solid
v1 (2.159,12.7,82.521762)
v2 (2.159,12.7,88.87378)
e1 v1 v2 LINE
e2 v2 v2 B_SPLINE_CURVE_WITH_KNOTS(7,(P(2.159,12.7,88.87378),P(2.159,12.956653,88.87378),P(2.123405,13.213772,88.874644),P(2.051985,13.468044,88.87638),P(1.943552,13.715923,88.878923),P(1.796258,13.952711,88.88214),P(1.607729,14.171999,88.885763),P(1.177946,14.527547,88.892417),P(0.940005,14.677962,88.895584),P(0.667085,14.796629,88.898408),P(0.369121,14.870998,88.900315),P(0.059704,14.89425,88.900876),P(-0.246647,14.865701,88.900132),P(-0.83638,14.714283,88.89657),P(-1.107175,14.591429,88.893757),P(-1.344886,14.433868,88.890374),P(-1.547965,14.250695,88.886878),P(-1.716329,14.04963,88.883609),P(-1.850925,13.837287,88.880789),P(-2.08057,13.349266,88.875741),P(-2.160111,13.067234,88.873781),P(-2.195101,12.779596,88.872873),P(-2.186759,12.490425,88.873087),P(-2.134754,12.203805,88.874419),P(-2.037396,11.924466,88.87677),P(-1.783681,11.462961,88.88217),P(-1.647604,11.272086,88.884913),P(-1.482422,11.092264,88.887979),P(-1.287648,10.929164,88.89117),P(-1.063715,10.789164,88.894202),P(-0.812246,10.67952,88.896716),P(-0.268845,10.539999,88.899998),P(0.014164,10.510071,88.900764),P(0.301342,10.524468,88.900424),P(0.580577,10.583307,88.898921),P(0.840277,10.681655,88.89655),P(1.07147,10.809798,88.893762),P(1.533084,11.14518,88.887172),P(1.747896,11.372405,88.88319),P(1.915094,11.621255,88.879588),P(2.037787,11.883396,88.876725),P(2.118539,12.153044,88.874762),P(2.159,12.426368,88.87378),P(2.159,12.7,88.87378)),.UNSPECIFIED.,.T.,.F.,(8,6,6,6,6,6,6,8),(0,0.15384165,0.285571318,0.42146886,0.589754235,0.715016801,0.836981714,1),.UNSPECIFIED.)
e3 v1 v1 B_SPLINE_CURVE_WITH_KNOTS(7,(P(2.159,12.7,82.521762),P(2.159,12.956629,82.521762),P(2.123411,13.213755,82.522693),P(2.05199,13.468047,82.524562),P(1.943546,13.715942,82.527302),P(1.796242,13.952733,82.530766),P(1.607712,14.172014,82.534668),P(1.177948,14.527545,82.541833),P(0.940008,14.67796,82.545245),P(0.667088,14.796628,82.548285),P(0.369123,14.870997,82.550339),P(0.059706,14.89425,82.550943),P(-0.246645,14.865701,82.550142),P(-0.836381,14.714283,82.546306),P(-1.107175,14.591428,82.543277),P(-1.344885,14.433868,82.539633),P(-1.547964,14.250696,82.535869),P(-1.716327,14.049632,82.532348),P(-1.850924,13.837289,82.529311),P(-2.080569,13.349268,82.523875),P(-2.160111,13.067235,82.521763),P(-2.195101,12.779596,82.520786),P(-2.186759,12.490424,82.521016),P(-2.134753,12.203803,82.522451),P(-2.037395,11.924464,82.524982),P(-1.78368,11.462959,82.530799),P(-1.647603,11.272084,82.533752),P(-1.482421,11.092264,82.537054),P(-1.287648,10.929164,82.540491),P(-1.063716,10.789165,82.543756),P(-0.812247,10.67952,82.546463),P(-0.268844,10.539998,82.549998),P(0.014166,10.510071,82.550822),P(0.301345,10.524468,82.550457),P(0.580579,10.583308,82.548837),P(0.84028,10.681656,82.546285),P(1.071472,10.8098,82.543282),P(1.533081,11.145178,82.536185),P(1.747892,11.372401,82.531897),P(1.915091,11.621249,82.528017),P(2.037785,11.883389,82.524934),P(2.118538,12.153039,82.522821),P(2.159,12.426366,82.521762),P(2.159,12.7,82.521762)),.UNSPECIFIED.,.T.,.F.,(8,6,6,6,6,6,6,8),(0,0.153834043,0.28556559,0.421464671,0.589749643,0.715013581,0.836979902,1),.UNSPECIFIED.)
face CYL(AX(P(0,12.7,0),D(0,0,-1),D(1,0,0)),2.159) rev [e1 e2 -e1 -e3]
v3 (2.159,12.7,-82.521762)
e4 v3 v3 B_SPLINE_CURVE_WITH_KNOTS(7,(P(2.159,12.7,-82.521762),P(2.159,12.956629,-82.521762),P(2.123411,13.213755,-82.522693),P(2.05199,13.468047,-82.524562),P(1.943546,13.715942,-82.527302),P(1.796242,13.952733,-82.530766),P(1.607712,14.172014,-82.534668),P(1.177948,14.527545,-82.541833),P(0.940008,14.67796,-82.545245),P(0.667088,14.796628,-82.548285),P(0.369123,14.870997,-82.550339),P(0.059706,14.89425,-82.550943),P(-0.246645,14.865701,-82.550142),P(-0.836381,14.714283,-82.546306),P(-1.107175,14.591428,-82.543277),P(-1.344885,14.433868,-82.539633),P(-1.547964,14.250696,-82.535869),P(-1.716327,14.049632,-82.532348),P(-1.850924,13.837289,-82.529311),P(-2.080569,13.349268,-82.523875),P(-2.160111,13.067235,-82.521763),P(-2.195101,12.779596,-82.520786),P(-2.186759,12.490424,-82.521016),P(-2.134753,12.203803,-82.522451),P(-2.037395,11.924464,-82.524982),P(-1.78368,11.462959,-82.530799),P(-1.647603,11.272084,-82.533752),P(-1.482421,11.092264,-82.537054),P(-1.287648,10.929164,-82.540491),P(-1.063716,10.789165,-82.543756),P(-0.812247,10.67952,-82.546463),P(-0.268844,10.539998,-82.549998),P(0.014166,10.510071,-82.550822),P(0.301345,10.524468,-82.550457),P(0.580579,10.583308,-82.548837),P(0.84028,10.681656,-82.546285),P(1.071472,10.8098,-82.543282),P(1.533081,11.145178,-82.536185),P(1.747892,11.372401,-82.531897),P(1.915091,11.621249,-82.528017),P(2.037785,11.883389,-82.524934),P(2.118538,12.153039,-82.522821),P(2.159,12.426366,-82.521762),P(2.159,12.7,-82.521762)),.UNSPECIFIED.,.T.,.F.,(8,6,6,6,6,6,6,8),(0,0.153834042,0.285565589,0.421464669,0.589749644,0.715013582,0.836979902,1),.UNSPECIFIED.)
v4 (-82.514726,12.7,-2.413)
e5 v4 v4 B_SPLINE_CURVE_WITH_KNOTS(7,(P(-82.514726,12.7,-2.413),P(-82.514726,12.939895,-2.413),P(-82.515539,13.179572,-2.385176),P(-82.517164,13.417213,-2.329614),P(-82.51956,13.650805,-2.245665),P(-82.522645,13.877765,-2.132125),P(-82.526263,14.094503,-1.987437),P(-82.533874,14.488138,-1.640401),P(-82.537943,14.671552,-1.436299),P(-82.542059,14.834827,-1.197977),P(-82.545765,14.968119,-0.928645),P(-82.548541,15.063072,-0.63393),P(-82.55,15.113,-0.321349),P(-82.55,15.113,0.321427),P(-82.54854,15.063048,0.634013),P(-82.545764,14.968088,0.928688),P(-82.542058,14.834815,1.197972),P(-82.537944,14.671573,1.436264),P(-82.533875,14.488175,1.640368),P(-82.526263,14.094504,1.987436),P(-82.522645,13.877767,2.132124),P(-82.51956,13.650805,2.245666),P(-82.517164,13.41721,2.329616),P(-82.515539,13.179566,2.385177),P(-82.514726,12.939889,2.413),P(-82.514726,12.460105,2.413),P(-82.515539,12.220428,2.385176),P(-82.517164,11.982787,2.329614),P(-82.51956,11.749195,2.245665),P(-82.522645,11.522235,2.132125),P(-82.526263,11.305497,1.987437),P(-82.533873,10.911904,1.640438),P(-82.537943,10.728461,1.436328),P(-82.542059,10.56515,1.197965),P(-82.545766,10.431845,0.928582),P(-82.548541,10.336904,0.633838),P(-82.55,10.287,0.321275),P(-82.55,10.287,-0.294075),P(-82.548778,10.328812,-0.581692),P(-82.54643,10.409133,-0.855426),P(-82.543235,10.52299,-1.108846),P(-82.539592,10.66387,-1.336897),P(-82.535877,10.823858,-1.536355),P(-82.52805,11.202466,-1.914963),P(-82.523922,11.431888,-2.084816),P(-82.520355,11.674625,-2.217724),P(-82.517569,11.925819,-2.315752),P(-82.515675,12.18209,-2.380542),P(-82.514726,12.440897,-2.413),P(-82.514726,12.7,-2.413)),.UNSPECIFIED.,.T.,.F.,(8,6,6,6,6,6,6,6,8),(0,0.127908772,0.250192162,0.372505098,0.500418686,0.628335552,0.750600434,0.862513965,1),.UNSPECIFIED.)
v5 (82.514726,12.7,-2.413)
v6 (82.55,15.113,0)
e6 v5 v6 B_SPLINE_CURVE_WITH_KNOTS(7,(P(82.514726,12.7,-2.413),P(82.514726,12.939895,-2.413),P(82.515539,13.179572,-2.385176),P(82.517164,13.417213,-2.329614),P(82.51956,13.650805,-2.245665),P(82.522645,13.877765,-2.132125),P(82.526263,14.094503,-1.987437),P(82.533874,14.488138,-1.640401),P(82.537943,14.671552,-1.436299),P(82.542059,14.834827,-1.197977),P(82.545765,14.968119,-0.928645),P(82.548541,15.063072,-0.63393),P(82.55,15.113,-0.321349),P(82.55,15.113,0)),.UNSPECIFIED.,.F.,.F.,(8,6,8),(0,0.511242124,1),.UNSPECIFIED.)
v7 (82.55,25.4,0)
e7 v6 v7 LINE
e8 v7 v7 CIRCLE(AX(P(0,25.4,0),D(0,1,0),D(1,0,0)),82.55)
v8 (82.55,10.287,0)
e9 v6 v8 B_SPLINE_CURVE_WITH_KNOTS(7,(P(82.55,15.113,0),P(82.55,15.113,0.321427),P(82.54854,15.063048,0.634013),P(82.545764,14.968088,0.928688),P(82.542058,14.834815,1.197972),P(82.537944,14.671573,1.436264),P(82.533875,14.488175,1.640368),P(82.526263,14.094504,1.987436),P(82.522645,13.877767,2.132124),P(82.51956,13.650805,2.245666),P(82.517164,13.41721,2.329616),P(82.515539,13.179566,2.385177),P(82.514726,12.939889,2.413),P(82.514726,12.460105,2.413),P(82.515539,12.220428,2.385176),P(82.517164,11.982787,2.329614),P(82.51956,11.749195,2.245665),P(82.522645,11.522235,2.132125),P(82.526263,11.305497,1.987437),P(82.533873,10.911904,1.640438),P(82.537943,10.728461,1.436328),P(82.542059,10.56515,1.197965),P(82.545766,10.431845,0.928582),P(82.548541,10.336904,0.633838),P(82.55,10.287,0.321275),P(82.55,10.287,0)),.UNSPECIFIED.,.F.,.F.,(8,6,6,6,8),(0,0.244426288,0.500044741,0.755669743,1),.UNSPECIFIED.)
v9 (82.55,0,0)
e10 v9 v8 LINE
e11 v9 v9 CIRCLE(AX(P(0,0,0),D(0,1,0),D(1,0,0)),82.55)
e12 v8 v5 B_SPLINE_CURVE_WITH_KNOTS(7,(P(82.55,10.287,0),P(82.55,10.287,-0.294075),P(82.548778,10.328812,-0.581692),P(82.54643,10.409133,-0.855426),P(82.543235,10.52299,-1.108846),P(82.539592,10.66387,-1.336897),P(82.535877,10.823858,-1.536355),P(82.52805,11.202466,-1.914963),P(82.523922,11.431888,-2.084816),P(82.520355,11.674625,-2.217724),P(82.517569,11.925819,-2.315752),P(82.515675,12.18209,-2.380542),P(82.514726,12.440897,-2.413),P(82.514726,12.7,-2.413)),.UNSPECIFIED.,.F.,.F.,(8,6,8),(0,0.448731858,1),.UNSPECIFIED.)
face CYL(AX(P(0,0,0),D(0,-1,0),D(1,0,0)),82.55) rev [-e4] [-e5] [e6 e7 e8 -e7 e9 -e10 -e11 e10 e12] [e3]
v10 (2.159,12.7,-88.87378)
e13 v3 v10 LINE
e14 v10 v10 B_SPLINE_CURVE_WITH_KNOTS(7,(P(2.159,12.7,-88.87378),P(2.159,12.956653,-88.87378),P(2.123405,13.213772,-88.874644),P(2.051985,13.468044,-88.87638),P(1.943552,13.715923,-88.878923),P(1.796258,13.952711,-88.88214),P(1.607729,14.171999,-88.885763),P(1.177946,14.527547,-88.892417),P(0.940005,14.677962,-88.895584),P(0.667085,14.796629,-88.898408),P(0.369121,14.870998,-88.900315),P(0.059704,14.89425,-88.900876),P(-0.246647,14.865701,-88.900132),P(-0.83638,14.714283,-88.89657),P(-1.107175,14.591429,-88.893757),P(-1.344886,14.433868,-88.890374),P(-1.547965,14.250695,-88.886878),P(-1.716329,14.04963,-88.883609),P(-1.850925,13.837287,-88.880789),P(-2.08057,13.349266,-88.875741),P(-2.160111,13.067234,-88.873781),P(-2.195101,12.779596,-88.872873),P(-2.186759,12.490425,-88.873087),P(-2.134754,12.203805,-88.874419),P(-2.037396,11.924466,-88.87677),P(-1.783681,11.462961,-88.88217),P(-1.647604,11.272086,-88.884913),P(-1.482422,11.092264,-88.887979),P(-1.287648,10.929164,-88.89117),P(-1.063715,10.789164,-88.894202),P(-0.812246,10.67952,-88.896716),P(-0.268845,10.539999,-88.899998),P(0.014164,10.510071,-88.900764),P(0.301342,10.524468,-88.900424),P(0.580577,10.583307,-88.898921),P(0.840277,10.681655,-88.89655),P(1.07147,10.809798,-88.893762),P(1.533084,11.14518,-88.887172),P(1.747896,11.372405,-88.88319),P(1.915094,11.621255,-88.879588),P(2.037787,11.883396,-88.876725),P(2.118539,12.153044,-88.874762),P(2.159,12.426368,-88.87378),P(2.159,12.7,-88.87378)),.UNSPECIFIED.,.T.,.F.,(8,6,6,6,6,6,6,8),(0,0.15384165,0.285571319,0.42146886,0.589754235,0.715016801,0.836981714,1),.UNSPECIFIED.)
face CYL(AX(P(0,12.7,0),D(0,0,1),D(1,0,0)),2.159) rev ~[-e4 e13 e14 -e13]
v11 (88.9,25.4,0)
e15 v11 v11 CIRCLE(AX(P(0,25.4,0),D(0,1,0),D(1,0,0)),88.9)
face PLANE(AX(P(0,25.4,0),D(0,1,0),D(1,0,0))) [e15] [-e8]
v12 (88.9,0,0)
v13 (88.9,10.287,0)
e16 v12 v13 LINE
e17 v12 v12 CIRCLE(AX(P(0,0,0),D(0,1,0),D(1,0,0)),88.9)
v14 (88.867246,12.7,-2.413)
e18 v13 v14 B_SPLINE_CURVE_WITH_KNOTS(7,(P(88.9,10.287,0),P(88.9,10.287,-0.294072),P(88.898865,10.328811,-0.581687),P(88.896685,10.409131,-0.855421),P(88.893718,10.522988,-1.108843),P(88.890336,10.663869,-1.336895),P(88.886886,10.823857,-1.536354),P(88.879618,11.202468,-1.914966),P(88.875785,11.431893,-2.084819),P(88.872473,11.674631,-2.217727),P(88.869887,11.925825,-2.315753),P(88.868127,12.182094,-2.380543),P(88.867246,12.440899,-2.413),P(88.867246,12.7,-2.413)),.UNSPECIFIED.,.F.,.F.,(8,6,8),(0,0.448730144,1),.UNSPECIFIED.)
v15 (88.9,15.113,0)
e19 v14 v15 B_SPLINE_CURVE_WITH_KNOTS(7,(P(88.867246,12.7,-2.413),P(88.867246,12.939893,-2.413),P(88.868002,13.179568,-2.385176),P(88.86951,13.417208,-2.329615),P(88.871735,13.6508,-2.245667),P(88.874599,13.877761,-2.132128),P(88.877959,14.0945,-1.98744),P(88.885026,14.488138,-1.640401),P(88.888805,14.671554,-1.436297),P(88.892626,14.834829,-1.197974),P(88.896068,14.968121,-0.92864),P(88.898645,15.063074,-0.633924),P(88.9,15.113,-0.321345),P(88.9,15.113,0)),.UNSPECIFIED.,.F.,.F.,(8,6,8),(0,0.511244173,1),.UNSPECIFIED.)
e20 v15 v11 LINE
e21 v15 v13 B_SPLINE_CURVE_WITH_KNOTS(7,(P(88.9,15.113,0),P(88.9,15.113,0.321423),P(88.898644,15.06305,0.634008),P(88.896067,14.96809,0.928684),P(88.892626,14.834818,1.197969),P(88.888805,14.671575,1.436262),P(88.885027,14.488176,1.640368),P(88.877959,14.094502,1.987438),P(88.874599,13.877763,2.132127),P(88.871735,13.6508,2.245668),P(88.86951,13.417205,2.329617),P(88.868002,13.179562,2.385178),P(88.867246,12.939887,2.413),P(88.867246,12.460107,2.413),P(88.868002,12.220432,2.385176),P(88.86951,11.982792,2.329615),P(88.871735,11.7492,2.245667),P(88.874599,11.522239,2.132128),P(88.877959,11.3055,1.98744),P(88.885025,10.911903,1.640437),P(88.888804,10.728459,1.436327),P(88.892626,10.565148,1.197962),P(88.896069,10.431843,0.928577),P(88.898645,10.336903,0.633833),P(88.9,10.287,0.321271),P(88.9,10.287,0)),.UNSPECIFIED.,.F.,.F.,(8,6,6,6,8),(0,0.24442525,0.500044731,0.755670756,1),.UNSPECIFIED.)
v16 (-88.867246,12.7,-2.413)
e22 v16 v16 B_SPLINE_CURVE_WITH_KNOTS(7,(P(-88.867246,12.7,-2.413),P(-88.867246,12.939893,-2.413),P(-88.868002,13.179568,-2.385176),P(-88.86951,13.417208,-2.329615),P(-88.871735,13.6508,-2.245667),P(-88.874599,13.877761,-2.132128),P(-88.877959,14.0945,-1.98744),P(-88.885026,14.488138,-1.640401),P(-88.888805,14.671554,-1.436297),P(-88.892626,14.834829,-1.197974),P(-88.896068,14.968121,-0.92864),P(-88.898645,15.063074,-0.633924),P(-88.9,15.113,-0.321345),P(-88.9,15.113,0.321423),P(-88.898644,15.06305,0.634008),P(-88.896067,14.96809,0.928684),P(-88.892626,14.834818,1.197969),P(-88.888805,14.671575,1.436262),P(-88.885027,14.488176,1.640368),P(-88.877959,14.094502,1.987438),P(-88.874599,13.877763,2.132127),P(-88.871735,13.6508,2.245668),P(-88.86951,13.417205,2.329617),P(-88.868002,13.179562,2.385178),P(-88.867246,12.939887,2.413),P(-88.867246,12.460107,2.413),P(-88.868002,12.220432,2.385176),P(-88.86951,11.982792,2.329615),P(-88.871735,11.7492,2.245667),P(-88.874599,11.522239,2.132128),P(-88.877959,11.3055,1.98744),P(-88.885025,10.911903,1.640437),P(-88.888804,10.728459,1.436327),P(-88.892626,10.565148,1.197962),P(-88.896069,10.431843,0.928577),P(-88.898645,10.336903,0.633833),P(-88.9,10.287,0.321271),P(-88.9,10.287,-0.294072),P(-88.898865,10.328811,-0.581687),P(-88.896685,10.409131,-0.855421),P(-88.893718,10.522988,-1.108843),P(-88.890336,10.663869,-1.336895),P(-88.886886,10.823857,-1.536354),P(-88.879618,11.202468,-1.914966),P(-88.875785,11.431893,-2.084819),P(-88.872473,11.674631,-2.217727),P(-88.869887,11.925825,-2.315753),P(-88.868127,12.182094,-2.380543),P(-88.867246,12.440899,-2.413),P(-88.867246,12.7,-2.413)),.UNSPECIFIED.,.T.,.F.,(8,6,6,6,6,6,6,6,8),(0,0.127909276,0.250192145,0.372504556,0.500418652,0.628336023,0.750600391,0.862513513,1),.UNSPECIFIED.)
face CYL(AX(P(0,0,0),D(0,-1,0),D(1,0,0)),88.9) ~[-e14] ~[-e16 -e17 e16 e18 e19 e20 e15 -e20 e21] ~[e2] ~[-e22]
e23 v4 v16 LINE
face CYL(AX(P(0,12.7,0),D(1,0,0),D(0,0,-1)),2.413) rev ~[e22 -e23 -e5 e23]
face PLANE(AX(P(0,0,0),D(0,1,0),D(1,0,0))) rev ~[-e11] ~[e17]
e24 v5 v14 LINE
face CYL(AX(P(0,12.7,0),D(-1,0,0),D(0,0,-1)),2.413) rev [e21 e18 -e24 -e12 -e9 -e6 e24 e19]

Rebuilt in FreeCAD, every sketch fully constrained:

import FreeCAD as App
import Part
import Sketcher

V = App.Vector
Q = App.Units.Quantity

doc = App.newDocument("Part")
body = doc.addObject("PartDesign::Body", "Body")

# Sketch on XZ plane
sketch1 = doc.addObject("Sketcher::SketchObject", "Sketch")
body.addObject(sketch1)
sketch1.AttachmentSupport = (doc.XZ_Plane, [""])
sketch1.MapMode = "FlatFace"
sketch1.addGeometry([
    Part.Circle(V(0, 0, 0), V(0, 0, 1), 88.9),
    Part.Circle(V(0, 0, 0), V(0, 0, 1), 82.55),
], False)
sketch1.addConstraint([
    Sketcher.Constraint("Coincident", 0, 3, -1, 1),
    Sketcher.Constraint("Coincident", 1, 3, -1, 1),
    Sketcher.Constraint("Diameter", 0, Q("7 in")),
    Sketcher.Constraint("Diameter", 1, Q("6.5 in")),
])
pad1 = doc.addObject("PartDesign::Pad", "Pad")
body.addObject(pad1)
pad1.Profile = sketch1
pad1.Length = Q("1 in")
pad1.Reversed = True

# Sketch on YZ plane
sketch2 = doc.addObject("Sketcher::SketchObject", "Sketch001")
body.addObject(sketch2)
sketch2.AttachmentSupport = (doc.YZ_Plane, [""])
sketch2.MapMode = "FlatFace"
sketch2.addGeometry(Part.Circle(V(12.7, 0, 0), V(0, 0, 1), 2.413), False)
sketch2.addConstraint([
    Sketcher.Constraint("PointOnObject", 0, 3, -1),
    Sketcher.Constraint("Diameter", 0, Q("0.19 in")),
    Sketcher.Constraint("DistanceX", -1, 1, 0, 3, Q("0.5 in")),
])
pocket1 = doc.addObject("PartDesign::Pocket", "Pocket")
body.addObject(pocket1)
pocket1.Profile = sketch2
pocket1.Type = "ThroughAll"
pocket1.Midplane = True

# Sketch on XY plane
sketch3 = doc.addObject("Sketcher::SketchObject", "Sketch002")
body.addObject(sketch3)
sketch3.AttachmentSupport = (doc.XY_Plane, [""])
sketch3.MapMode = "FlatFace"
sketch3.addGeometry(Part.Circle(V(0, 12.7, 0), V(0, 0, 1), 2.159), False)
sketch3.addConstraint([
    Sketcher.Constraint("PointOnObject", 0, 3, -2),
    Sketcher.Constraint("Diameter", 0, Q("0.17 in")),
    Sketcher.Constraint("DistanceY", -1, 1, 0, 3, Q("0.5 in")),
])
pocket2 = doc.addObject("PartDesign::Pocket", "Pocket001")
body.addObject(pocket2)
pocket2.Profile = sketch3
pocket2.Type = "ThroughAll"
pocket2.Midplane = True

doc.recompute()
